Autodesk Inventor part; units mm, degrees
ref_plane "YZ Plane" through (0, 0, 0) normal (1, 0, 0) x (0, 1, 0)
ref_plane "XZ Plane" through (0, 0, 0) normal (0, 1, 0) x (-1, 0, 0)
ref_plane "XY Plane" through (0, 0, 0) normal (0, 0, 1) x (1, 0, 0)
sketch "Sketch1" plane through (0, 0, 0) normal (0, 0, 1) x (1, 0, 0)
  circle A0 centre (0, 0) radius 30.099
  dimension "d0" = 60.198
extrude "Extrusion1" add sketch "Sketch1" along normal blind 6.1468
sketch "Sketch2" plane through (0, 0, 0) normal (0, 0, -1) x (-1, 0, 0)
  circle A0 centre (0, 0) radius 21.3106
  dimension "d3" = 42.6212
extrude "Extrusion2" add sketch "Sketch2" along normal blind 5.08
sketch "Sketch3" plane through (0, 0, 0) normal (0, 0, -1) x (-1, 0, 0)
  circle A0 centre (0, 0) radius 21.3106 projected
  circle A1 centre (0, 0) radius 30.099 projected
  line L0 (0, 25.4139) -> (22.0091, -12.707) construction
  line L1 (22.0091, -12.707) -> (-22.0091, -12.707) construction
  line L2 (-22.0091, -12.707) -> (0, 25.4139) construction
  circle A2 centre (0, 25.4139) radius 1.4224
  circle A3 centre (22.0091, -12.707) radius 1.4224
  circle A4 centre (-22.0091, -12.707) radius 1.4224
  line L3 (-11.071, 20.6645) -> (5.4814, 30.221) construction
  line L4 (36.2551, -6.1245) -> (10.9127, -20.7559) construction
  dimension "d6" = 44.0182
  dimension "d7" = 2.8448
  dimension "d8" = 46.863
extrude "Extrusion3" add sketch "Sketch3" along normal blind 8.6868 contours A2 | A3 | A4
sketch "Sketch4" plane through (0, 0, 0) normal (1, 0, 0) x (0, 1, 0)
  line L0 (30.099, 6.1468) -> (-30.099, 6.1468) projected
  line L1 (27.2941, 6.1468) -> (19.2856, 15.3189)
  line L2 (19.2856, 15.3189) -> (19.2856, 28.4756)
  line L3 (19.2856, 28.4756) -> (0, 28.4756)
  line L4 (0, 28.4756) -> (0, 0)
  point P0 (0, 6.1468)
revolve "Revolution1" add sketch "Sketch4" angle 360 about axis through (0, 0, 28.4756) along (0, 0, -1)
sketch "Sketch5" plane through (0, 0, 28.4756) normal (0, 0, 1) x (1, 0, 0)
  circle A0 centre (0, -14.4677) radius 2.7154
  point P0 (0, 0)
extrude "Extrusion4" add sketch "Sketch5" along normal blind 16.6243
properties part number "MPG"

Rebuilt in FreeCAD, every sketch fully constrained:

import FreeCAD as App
import Part
import Sketcher
from FreeCAD import Vector
Q = App.Units.Quantity


def add_polygon(sketch, points):
    """Adds a closed chain of lines whose ends are joined by coincident constraints."""
    first, n = sketch.GeometryCount, len(points)
    for a, b in zip(points, points[1:] + points[:1]):
        sketch.addGeometry(Part.LineSegment(App.Vector(*a, 0), App.Vector(*b, 0)), False)
    for i in range(n):
        sketch.addConstraint(Sketcher.Constraint("Coincident", first + i, 2, first + (i + 1) % n, 1))

doc = App.newDocument("Part")
body = doc.addObject("PartDesign::Body", "Body")

# Sketch on XY plane
sketch1 = body.newObject("Sketcher::SketchObject", "Sketch")
sketch1.AttachmentSupport = (doc.getObject("XY_Plane"), [""])
sketch1.MapMode = "FlatFace"
sketch1.addGeometry(Part.Circle(Vector(0, 0, 0), Vector(0, 0, 1), 30.099), False)
sketch1.addConstraint(Sketcher.Constraint("Coincident", 0, 3, -1, 1))
sketch1.addConstraint(Sketcher.Constraint("Diameter", 0, Q("2.37 in")))
pad1 = body.newObject("PartDesign::Pad", "Pad")
pad1.Profile = sketch1
pad1.Length = Q("0.242 in")

# Sketch on XY plane
sketch2 = body.newObject("Sketcher::SketchObject", "Sketch001")
sketch2.AttachmentSupport = (doc.getObject("XY_Plane"), [""])
sketch2.MapMode = "FlatFace"
sketch2.addGeometry(Part.Circle(Vector(0, 0, 0), Vector(0, 0, 1), 21.3106), False)
sketch2.addConstraint(Sketcher.Constraint("Coincident", 0, 3, -1, 1))
sketch2.addConstraint(Sketcher.Constraint("Diameter", 0, Q("1.678 in")))
pad2 = body.newObject("PartDesign::Pad", "Pad001")
pad2.Profile = sketch2
pad2.Length = Q("0.2 in")
pad2.Reversed = True

# Sketch on XY plane
sketch3 = body.newObject("Sketcher::SketchObject", "Sketch002")
sketch3.AttachmentSupport = (doc.getObject("XY_Plane"), [""])
sketch3.MapMode = "FlatFace"
sketch3.addGeometry(Part.Circle(Vector(0, 25.4139, 0), Vector(0, 0, 1), 1.4224), False)
sketch3.addGeometry(Part.Circle(Vector(-22.0091, -12.707, 0), Vector(0, 0, 1), 1.4224), False)
sketch3.addGeometry(Part.Circle(Vector(22.0091, -12.707, 0), Vector(0, 0, 1), 1.4224), False)
sketch3.addConstraint(Sketcher.Constraint("Equal", 0, 1))
sketch3.addConstraint(Sketcher.Constraint("Equal", 1, 2))
sketch3.addConstraint(Sketcher.Constraint("Symmetric", 1, 3, 2, 3, -2))
sketch3.addConstraint(Sketcher.Constraint("PointOnObject", 0, 3, -2))
sketch3.addConstraint(Sketcher.Constraint("Diameter", 0, Q("0.112 in")))
sketch3.addConstraint(Sketcher.Constraint("DistanceX", 1, 3, 2, 3, Q("1.733 in")))
sketch3.addConstraint(Sketcher.Constraint("DistanceY", -1, 1, 0, 3, 25.414))
sketch3.addConstraint(Sketcher.Constraint("DistanceY", 1, 3, -1, 1, 12.707))
pad3 = body.newObject("PartDesign::Pad", "Pad002")
pad3.Profile = sketch3
pad3.Length = Q("0.342 in")
pad3.Reversed = True

# Sketch on YZ plane
sketch4 = body.newObject("Sketcher::SketchObject", "Sketch003")
sketch4.AttachmentSupport = (doc.getObject("YZ_Plane"), [""])
sketch4.MapMode = "FlatFace"
add_polygon(sketch4, [(0, 6.1468), (27.2941, 6.1468), (19.2856, 15.3189), (19.2856, 28.4756), (0, 28.4756)])  # lines 0-4
sketch4.addConstraint(Sketcher.Constraint("Horizontal", 0))
sketch4.addConstraint(Sketcher.Constraint("Vertical", 2))
sketch4.addConstraint(Sketcher.Constraint("Horizontal", 3))
sketch4.addConstraint(Sketcher.Constraint("Vertical", 4))
sketch4.addConstraint(Sketcher.Constraint("PointOnObject", 3, 2, -2))
sketch4.addConstraint(Sketcher.Constraint("DistanceY", -1, 1, 0, 2, Q("0.242 in")))
sketch4.addConstraint(Sketcher.Constraint("DistanceX", 0, 1, 0, 2, 27.294))
sketch4.addConstraint(Sketcher.Constraint("DistanceX", 3, 2, 3, 1, 19.2856))
sketch4.addConstraint(Sketcher.Constraint("DistanceY", 2, 1, 2, 2, 13.1567))
sketch4.addConstraint(Sketcher.Constraint("DistanceY", 4, 2, 4, 1, 22.3288))
revolution = body.newObject("PartDesign::Revolution", "Revolution")
revolution.Profile = sketch4
revolution.ReferenceAxis = (sketch4, ["V_Axis"])
revolution.Angle = 360

# Sketch on XY plane
sketch5 = body.newObject("Sketcher::SketchObject", "Sketch004")
sketch5.AttachmentSupport = (doc.getObject("XY_Plane"), [""])
sketch5.MapMode = "FlatFace"
sketch5.AttachmentOffset = App.Placement(Vector(0, 0, 28.4756), App.Rotation())
sketch5.addGeometry(Part.Circle(Vector(0, -14.4677, 0), Vector(0, 0, 1), 2.7154), False)
sketch5.addConstraint(Sketcher.Constraint("PointOnObject", 0, 3, -2))
sketch5.addConstraint(Sketcher.Constraint("Diameter", 0, Q("0.2138 in")))
sketch5.addConstraint(Sketcher.Constraint("DistanceY", 0, 3, -1, 1, Q("0.5696 in")))
pad4 = body.newObject("PartDesign::Pad", "Pad003")
pad4.Profile = sketch5
pad4.Length = Q("0.6545 in")

doc.recompute()
